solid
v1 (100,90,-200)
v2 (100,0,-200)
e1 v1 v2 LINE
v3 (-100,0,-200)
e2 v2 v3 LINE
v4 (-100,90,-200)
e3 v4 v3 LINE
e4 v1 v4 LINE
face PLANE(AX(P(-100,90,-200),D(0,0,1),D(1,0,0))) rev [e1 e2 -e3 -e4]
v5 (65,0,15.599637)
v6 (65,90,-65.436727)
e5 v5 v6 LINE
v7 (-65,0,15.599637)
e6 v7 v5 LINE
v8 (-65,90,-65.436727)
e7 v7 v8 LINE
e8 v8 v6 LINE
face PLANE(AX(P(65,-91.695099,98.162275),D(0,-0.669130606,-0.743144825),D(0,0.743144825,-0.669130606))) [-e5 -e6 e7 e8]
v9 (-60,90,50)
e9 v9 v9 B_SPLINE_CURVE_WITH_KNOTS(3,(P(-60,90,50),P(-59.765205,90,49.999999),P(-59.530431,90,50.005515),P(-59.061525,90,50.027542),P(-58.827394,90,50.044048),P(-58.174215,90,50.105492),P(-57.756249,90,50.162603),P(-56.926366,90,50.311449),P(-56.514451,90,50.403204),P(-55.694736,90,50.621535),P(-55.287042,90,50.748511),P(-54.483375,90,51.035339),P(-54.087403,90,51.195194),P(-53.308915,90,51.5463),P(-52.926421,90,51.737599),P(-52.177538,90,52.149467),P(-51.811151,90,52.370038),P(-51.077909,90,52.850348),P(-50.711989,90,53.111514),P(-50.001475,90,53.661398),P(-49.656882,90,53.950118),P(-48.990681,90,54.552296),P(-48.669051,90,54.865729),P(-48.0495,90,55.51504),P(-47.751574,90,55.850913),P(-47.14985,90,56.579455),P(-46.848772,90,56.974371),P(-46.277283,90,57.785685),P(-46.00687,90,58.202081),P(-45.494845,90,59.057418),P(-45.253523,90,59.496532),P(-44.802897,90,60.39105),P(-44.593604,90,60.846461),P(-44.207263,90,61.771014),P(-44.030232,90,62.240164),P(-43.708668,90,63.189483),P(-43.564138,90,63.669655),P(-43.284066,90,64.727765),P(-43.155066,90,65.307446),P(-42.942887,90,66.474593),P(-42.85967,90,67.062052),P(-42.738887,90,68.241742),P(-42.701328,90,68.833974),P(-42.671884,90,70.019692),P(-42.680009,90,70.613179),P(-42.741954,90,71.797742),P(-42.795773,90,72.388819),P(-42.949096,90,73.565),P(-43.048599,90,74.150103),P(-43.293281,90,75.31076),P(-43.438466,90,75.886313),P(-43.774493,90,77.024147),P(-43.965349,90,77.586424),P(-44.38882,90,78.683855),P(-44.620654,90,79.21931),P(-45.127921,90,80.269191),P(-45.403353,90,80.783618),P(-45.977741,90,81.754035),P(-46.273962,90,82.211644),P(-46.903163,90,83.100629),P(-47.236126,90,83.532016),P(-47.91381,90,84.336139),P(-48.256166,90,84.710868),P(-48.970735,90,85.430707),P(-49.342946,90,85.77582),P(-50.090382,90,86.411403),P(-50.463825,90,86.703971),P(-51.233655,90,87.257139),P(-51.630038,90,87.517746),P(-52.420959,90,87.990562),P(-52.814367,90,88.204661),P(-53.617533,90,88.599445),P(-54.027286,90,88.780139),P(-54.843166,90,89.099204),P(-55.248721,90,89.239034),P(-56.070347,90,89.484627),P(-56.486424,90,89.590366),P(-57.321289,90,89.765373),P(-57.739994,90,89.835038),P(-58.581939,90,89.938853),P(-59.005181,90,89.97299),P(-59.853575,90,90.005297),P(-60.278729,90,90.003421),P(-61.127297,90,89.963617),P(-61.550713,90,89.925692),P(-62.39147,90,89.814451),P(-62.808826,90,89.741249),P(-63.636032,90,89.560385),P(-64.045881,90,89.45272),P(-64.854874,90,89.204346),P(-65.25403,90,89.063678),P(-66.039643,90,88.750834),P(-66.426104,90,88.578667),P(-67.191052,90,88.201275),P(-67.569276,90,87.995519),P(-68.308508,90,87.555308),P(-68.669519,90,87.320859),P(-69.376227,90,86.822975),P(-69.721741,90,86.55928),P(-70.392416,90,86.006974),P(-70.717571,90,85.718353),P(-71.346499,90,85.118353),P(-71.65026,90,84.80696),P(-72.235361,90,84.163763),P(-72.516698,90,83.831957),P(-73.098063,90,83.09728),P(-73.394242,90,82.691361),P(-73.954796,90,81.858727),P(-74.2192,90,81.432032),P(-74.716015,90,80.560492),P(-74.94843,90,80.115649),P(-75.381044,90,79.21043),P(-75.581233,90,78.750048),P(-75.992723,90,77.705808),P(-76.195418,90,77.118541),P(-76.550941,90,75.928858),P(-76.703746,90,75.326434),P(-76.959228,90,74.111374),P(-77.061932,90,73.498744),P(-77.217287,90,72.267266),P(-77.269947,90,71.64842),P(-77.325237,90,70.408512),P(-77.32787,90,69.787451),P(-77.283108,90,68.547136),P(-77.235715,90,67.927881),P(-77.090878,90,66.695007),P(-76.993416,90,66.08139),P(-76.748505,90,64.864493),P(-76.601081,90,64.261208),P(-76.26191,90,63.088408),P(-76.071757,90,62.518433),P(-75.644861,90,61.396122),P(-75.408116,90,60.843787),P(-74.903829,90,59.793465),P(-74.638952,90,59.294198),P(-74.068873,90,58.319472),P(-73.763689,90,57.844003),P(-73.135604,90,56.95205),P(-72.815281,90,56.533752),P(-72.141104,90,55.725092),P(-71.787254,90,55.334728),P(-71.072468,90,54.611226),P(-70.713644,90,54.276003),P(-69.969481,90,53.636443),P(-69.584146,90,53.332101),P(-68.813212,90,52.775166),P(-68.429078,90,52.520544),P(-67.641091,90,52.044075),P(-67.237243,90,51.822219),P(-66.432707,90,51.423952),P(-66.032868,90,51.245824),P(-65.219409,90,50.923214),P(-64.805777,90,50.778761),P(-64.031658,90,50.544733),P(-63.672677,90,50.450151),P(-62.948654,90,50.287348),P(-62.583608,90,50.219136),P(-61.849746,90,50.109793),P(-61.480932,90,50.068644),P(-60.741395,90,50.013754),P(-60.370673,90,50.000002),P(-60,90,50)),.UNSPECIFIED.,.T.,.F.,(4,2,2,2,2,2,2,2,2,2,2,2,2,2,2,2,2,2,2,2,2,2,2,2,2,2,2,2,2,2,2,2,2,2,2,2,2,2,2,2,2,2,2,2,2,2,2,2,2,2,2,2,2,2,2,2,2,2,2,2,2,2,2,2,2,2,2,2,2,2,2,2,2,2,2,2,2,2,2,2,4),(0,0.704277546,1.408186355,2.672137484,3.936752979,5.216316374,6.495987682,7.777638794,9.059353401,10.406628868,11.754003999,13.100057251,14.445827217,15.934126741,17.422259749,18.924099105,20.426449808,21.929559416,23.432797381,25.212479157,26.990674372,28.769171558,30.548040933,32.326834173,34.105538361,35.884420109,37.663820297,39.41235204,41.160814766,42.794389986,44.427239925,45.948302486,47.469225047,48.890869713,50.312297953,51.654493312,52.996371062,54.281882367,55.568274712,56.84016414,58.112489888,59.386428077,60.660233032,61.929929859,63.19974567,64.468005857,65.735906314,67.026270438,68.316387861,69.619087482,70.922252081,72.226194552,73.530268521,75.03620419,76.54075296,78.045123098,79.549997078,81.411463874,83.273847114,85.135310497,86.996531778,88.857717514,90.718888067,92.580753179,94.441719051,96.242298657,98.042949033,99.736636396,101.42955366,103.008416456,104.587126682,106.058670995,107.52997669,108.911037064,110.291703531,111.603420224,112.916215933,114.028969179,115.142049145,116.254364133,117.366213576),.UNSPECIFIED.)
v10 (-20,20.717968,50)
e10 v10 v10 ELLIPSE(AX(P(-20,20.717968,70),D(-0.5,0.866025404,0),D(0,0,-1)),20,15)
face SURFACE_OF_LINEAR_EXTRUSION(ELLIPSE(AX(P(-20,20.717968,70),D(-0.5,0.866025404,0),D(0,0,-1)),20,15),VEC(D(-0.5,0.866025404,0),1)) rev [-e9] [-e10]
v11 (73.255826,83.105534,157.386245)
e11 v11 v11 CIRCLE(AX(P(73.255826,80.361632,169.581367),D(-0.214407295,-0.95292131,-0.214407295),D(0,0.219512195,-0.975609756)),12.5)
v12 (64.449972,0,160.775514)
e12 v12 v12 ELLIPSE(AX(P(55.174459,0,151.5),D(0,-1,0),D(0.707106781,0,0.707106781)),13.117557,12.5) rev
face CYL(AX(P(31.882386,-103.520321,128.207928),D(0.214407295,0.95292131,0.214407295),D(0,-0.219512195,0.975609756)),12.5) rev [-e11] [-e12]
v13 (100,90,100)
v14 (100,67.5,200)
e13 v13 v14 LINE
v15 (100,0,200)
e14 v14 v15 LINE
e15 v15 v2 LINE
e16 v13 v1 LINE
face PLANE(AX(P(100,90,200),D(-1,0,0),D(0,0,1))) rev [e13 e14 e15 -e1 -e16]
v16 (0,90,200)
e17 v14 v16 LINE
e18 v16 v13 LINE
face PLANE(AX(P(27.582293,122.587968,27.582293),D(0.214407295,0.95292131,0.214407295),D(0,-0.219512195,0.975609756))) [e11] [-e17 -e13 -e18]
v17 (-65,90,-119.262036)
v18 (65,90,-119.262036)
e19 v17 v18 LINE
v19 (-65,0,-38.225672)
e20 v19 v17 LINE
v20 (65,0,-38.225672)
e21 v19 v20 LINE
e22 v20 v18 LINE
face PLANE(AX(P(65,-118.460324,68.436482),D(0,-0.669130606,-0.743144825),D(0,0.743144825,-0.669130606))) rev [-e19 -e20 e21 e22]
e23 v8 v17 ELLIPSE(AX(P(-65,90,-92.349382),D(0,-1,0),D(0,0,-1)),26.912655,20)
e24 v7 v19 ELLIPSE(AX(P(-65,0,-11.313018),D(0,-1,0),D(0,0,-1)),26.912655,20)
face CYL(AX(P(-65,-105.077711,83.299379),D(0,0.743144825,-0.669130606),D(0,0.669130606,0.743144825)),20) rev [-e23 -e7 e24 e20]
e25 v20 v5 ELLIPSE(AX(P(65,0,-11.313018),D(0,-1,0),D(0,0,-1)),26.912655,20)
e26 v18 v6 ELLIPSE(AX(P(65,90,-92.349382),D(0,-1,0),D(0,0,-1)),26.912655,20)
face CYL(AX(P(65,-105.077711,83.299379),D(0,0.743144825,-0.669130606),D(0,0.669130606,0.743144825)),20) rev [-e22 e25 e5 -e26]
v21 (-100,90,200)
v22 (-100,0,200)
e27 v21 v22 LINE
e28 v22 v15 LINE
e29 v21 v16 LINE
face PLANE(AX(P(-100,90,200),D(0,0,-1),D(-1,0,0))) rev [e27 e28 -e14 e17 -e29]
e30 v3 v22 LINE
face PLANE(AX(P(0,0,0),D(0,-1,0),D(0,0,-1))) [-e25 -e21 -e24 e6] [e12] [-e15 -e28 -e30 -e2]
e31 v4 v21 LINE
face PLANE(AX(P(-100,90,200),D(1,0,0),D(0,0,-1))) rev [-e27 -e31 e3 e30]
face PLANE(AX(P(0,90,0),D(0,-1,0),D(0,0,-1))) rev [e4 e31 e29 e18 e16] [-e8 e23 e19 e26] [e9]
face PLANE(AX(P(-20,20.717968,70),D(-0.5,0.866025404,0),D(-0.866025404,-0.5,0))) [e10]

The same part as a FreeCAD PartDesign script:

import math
import FreeCAD as App
import Part
import Sketcher
Q = App.Units.Quantity


def add_polygon(sketch, points):
    """Adds a closed chain of lines whose ends are joined by coincident constraints."""
    first, n = sketch.GeometryCount, len(points)
    for a, b in zip(points, points[1:] + points[:1]):
        sketch.addGeometry(Part.LineSegment(App.Vector(*a, 0), App.Vector(*b, 0)), False)
    for i in range(n):
        sketch.addConstraint(Sketcher.Constraint("Coincident", first + i, 2, first + (i + 1) % n, 1))

doc = App.newDocument("Part")
body = doc.addObject("PartDesign::Body", "Body")

sketch1 = body.newObject("Sketcher::SketchObject", "Sketch")
sketch1.AttachmentSupport = (doc.getObject("XZ_Plane"), [""])
sketch1.MapMode = "FlatFace"
add_polygon(sketch1, [(-100, -200), (-100, 200), (100, 200), (100, -200)])
sketch1.addConstraint([
    Sketcher.Constraint("Vertical", 0),
    Sketcher.Constraint("Horizontal", 1),
    Sketcher.Constraint("Vertical", 2),
    Sketcher.Constraint("Horizontal", 3),
    Sketcher.Constraint("Symmetric", 0, 2, 2, 2, -1, 1),
    Sketcher.Constraint("DistanceX", 1, 1, 1, 2, Q("200 mm")),
    Sketcher.Constraint("DistanceY", 0, 1, 0, 2, Q("400 mm")),
])
pad1 = body.newObject("PartDesign::Pad", "Pad")
pad1.Profile = sketch1
pad1.Length = 90
pad1.Reversed = True

sketch2 = body.newObject("Sketcher::SketchObject", "Sketch001")
sketch2.Placement = App.Placement(App.Vector(27.582293, 122.587968, 27.582293), App.Rotation(App.Vector(-0.976744343, 0.209177849, 0.047065016), App.Vector(0, 0.219512195, -0.975609756), App.Vector(-0.214407295, -0.95292131, -0.214407295), "ZXY"))
add_polygon(sketch2, [(28, -175), (-74, -78), (-74, -180)])
sketch2.addConstraint([
    Sketcher.Constraint("Vertical", 1),
    Sketcher.Constraint("DistanceY", 1, 2, 1, 1, Q("102.5 mm")),
    Sketcher.Constraint("Distance", 2, Q("102.5 mm")),
    Sketcher.Constraint("DistanceX", -1, 1, 2, 2, Q("28.23901 mm")),
    Sketcher.Constraint("Distance", 0, Q("141.421356 mm")),
    Sketcher.Constraint("DistanceY", 0, 2, -1, 1, Q("77.804878 mm")),
])
pocket1 = body.newObject("PartDesign::Pocket", "Pocket")
pocket1.Profile = sketch2
pocket1.Type = "ThroughAll"

sketch3 = body.newObject("Sketcher::SketchObject", "Sketch002")
sketch3.Placement = App.Placement(App.Vector(27.582293, 122.587968, 27.582293), App.Rotation(App.Vector(-0.976744343, 0.209177849, 0.047065016), App.Vector(0, 0.219512195, -0.975609756), App.Vector(-0.214407295, -0.95292131, -0.214407295), "ZXY"))
sketch3.addGeometry(Part.Circle(App.Vector(-47, -148, 0), App.Vector(0, 0, 1), 12), False)
sketch3.addConstraint([
    Sketcher.Constraint("Diameter", 0, Q("25 mm")),
    Sketcher.Constraint("DistanceX", 0, 3, -1, 1, Q("46.76099 mm")),
    Sketcher.Constraint("DistanceY", 0, 3, -1, 1, Q("147.804878 mm")),
])
pocket2 = body.newObject("PartDesign::Pocket", "Pocket001")
pocket2.Profile = sketch3
pocket2.Type = "ThroughAll"
pocket2.Reversed = True

sketch4 = body.newObject("Sketcher::SketchObject", "Sketch003")
sketch4.Placement = App.Placement(App.Vector(-63.971143, 110.80127, 0), App.Rotation(App.Vector(0, 0, 1), App.Vector(0.866025404, 0.5, 0), App.Vector(-0.5, 0.866025404, 0), "ZXY"))
sketch4.addGeometry(Part.Ellipse(App.Vector(50, -6.961524, 0), App.Vector(70, -21.961524, 0), App.Vector(70, -6.961524, 0)), False)
sketch4.addConstraint(Sketcher.Constraint("Block", 0))
pocket3 = body.newObject("PartDesign::Pocket", "Pocket002")
pocket3.Profile = sketch4
pocket3.Length = 100

sketch5 = body.newObject("Sketcher::SketchObject", "Sketch004")
sketch5.Placement = App.Placement(App.Vector(0, 149.15597, -134.300639), App.Rotation(App.Vector(-1, 0, 0), App.Vector(0, 0.669130606, 0.743144825), App.Vector(0, 0.743144825, -0.669130606), "ZXY"))
sketch5.addGeometry([
    Part.LineSegment(App.Vector(65, 12, 0), App.Vector(-65, 12, 0)),
    Part.ArcOfCircle(Part.Circle(App.Vector(-65, -8, 0), App.Vector(0, 0, 1), 20), math.radians(90), math.radians(270)),
    Part.LineSegment(App.Vector(-65, -28, 0), App.Vector(65, -28, 0)),
    Part.ArcOfCircle(Part.Circle(App.Vector(65, -8, 0), App.Vector(0, 0, 1), 20), math.radians(-90), math.radians(90)),
], False)
sketch5.addConstraint([
    Sketcher.Constraint("Tangent", 0, 2, 1, 1),
    Sketcher.Constraint("Tangent", 1, 2, 2, 1),
    Sketcher.Constraint("Tangent", 2, 2, 3, 1),
    Sketcher.Constraint("Tangent", 3, 2, 0, 1),
    Sketcher.Constraint("Horizontal", 0),
    Sketcher.Constraint("Horizontal", 2),
    Sketcher.Constraint("Radius", 1, Q("20 mm")),
    Sketcher.Constraint("DistanceX", 0, 2, 0, 1, Q("130 mm")),
    Sketcher.Constraint("DistanceX", 1, 3, -1, 1, Q("65 mm")),
    Sketcher.Constraint("DistanceY", 1, 3, -1, 1, Q("8.407211 mm")),
])
pocket4 = body.newObject("PartDesign::Pocket", "Pocket003")
pocket4.Profile = sketch5
pocket4.Type = "ThroughAll"

doc.recompute()
